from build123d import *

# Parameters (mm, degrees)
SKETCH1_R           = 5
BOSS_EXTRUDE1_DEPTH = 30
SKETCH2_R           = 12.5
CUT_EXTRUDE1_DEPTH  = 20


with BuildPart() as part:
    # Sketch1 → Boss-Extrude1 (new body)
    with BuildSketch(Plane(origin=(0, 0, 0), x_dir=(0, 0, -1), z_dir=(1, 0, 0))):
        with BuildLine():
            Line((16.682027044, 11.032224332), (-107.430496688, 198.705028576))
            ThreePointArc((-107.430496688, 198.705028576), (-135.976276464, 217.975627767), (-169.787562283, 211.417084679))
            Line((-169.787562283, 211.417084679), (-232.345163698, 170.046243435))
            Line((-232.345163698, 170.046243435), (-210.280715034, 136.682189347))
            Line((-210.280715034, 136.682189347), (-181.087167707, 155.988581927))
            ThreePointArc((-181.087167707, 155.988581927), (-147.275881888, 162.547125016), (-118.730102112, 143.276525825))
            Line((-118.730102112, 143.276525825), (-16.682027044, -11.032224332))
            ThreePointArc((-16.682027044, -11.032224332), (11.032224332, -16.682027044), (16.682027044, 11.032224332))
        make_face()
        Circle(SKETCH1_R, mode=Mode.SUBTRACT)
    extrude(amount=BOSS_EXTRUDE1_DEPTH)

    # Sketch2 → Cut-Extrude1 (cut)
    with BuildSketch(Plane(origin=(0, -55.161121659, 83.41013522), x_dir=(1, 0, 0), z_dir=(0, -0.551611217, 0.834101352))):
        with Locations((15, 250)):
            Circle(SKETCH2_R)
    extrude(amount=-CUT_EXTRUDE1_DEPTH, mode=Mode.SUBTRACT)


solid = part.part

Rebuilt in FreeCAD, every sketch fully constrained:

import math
import FreeCAD as App
import Part
import Sketcher
from FreeCAD import Vector
Q = App.Units.Quantity

doc = App.newDocument("Part")
body = doc.addObject("PartDesign::Body", "Body")

# Sketch on YZ plane
sketch1 = body.newObject("Sketcher::SketchObject", "Sketch")
sketch1.AttachmentSupport = (doc.getObject("YZ_Plane"), [""])
sketch1.MapMode = "FlatFace"
sketch1.addGeometry([
    Part.LineSegment(Vector(11, -17, 0), Vector(199, 107, 0)),  # 0
    Part.ArcOfCircle(Part.Circle(Vector(174, 145, 0), Vector(0, 0, 1), 45), math.radians(-57), math.radians(33)),  # 1
    Part.LineSegment(Vector(211, 170, 0), Vector(170, 232, 0)),  # 2
    Part.LineSegment(Vector(170, 232, 0), Vector(137, 210, 0)),  # 3
    Part.LineSegment(Vector(137, 210, 0), Vector(156, 181, 0)),  # 4
    Part.ArcOfCircle(Part.Circle(Vector(118, 156, 0), Vector(0, 0, 1), 45), math.radians(-57), math.radians(33)),  # 5
    Part.LineSegment(Vector(143, 119, 0), Vector(-11, 17, 0)),  # 6
    Part.ArcOfCircle(Part.Circle(Vector(0, 0, 0), Vector(0, 0, 1), 20), math.radians(123), math.radians(303)),  # 7
    Part.Circle(Vector(0, 0, 0), Vector(0, 0, 1), 5),  # 8
], False)
sketch1.addConstraint([
    Sketcher.Constraint("Tangent", 0, 2, 1, 1),
    Sketcher.Constraint("Tangent", 1, 2, 2, 1),
    Sketcher.Constraint("Coincident", 2, 2, 3, 1),
    Sketcher.Constraint("Coincident", 3, 2, 4, 1),
    Sketcher.Constraint("Tangent", 4, 2, 5, 2),
    Sketcher.Constraint("Tangent", 5, 1, 6, 1),
    Sketcher.Constraint("Tangent", 6, 2, 7, 1),
    Sketcher.Constraint("Tangent", 7, 2, 0, 1),
    Sketcher.Constraint("Coincident", 7, 3, -1, 1),
    Sketcher.Constraint("Coincident", 8, 3, -1, 1),
    Sketcher.Constraint("Equal", 1, 5),
    Sketcher.Constraint("Perpendicular", 0, 2),
    Sketcher.Constraint("Perpendicular", 2, 3),
    Sketcher.Constraint("Perpendicular", 3, 4),
    Sketcher.Constraint("Perpendicular", 4, 6),
    Sketcher.Constraint("Diameter", 8, Q("10 mm")),
    Sketcher.Constraint("Radius", 1, Q("45 mm")),
    Sketcher.Constraint("Radius", 7, Q("20 mm")),
    Sketcher.Constraint("Distance", 0, Q("225 mm")),
    Sketcher.Constraint("Distance", 2, Q("75 mm")),
    Sketcher.Constraint("Distance", 3, Q("40 mm")),
    Sketcher.Constraint("DistanceY", 5, 3, 1, 2, Q("13.522899 mm")),
])
pad1 = body.newObject("PartDesign::Pad", "Pad")
pad1.Profile = sketch1
pad1.Length = 30

# Sketch on an angled plane
sketch2 = body.newObject("Sketcher::SketchObject", "Sketch001")
sketch2.Placement = App.Placement(Vector(0, -55.161122, 83.410135), App.Rotation(Vector(1, 0, 0), Vector(0, 0.834101352, 0.551611217), Vector(0, -0.551611217, 0.834101352), "ZXY"))
sketch2.addGeometry(Part.Circle(Vector(15, 250, 0), Vector(0, 0, 1), 12), False)
sketch2.addConstraint([
    Sketcher.Constraint("Diameter", 0, Q("25 mm")),
    Sketcher.Constraint("DistanceX", -1, 1, 0, 3, Q("15 mm")),
    Sketcher.Constraint("DistanceY", -1, 1, 0, 3, Q("250 mm")),
])
pocket1 = body.newObject("PartDesign::Pocket", "Pocket")
pocket1.Profile = sketch2
pocket1.Length = 20

doc.recompute()
